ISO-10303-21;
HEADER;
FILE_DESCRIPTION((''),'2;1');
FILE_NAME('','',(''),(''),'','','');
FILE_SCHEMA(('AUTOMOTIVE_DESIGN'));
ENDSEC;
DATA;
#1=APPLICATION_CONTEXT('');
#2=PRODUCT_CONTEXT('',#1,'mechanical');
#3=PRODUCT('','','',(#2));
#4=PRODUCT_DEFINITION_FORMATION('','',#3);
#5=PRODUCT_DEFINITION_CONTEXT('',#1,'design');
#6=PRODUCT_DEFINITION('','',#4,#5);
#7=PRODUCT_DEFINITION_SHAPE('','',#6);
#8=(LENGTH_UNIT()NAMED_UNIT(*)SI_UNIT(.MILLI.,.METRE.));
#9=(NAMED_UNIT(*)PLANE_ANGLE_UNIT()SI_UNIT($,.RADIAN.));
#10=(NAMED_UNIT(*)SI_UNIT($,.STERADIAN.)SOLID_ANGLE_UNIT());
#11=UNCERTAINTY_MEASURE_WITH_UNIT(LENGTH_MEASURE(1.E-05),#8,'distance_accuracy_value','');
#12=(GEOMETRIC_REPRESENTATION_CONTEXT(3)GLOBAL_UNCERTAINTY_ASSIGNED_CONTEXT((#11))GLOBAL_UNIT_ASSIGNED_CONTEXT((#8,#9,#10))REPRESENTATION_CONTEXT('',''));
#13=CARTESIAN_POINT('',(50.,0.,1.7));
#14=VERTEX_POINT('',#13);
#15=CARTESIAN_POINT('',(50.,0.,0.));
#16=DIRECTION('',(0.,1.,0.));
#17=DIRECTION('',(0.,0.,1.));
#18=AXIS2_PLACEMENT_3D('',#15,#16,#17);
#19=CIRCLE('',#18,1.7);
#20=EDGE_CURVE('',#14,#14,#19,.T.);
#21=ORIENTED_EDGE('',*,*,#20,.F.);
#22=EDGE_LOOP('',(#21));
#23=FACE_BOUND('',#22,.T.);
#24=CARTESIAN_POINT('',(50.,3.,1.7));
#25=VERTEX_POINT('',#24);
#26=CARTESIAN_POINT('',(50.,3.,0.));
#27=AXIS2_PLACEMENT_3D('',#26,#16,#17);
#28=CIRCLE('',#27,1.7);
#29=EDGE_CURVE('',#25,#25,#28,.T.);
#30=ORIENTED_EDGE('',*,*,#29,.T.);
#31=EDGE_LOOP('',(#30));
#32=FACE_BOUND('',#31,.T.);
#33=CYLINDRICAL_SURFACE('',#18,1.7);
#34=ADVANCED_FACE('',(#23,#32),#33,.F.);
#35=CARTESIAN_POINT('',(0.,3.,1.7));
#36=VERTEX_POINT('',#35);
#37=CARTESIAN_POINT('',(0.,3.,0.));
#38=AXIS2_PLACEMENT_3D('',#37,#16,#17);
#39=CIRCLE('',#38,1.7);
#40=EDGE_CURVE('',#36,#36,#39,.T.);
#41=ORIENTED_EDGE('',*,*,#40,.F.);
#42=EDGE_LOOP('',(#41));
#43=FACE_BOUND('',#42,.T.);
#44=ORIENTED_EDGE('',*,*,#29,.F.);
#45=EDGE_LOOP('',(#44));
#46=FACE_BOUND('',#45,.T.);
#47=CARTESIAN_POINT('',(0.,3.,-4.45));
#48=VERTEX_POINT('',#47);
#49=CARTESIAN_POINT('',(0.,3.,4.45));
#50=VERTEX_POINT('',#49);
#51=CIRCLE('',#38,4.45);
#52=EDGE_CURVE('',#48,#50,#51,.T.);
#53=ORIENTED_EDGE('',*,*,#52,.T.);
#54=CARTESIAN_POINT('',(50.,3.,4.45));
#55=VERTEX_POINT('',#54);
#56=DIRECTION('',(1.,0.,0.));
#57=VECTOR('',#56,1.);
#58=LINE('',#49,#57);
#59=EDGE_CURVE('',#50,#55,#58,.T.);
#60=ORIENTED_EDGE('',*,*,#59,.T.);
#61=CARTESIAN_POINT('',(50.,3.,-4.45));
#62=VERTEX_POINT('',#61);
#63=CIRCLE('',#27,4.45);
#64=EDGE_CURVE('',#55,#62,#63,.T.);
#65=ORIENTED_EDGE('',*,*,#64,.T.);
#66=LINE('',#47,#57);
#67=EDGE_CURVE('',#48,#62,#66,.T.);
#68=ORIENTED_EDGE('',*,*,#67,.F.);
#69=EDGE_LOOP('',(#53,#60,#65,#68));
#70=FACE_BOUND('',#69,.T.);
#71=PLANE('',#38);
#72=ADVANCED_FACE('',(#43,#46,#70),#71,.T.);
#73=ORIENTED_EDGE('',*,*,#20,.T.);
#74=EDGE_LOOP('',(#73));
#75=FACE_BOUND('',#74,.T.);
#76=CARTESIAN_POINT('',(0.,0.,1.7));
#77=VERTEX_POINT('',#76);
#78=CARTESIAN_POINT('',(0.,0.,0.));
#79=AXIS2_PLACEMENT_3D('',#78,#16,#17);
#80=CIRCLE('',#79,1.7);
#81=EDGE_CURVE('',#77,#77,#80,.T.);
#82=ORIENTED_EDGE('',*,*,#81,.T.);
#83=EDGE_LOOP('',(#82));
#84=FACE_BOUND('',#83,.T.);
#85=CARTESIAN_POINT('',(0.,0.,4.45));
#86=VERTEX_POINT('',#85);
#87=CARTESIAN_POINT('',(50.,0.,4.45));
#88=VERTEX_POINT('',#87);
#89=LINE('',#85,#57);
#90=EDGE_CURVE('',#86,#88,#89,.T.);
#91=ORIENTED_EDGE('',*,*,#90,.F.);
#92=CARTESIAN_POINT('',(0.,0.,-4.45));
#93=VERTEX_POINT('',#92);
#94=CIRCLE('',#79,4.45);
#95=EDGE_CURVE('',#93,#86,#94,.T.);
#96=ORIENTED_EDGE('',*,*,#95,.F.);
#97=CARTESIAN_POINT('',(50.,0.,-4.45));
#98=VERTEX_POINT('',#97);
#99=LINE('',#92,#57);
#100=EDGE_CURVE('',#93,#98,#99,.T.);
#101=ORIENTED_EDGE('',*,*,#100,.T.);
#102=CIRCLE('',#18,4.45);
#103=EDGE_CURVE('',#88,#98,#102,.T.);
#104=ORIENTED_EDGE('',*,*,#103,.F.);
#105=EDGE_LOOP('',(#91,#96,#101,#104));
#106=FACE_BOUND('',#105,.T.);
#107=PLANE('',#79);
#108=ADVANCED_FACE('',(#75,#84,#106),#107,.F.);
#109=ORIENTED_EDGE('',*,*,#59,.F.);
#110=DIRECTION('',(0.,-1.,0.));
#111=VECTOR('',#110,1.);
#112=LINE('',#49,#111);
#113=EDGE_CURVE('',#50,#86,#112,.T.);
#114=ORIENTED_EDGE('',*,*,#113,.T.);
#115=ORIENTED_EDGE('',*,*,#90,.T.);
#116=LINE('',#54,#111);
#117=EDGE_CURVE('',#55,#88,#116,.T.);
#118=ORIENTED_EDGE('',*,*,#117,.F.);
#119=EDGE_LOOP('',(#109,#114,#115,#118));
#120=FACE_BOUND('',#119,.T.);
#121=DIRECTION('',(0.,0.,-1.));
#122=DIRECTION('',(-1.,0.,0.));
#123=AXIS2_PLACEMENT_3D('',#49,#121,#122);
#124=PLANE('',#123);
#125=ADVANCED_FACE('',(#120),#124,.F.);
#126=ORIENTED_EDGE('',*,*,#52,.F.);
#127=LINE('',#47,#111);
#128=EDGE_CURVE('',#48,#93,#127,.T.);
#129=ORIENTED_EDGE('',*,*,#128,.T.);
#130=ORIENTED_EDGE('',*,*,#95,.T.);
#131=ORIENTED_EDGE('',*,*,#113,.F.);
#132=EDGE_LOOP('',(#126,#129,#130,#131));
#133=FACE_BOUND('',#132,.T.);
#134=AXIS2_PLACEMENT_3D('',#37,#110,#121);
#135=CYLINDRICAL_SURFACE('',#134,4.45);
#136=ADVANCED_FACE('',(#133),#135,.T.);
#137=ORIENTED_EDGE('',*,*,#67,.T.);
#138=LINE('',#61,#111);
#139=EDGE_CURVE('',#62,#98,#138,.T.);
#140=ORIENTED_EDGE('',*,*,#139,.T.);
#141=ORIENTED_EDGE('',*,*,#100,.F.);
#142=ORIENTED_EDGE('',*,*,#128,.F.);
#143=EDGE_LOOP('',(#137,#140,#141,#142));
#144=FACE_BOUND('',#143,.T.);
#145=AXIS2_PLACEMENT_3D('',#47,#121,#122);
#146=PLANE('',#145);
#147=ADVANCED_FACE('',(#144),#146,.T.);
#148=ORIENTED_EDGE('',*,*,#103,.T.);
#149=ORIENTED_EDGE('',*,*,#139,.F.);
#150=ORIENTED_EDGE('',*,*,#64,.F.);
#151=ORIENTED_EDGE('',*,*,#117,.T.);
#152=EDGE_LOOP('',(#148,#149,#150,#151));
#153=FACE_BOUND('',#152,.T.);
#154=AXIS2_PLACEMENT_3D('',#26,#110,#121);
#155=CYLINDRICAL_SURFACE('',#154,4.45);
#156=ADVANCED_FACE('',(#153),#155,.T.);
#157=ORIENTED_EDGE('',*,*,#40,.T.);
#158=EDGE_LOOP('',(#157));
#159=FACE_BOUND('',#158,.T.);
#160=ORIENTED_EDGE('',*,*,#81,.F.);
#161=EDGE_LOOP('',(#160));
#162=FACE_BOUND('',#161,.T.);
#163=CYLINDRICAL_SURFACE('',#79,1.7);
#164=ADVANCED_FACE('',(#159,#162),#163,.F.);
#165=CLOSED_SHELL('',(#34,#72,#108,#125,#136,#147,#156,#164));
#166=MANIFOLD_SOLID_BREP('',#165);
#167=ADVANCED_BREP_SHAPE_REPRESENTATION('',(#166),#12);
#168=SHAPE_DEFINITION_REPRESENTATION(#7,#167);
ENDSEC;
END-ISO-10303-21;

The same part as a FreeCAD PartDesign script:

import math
import FreeCAD as App
import Part
import Sketcher
Q = App.Units.Quantity

doc = App.newDocument("Part")
body = doc.addObject("PartDesign::Body", "Body")

sketch1 = body.newObject("Sketcher::SketchObject", "Sketch")
sketch1.AttachmentSupport = (doc.getObject("XZ_Plane"), [""])
sketch1.MapMode = "FlatFace"
sketch1.addGeometry(Part.ArcOfCircle(Part.Circle(App.Vector(0, 0, 0), App.Vector(0, 0, 1), 4.5), math.radians(90), math.radians(270)), False)
sketch1.addGeometry(Part.LineSegment(App.Vector(0, 4.5, 0), App.Vector(50, 4.5, 0)), False)
sketch1.addGeometry(Part.ArcOfCircle(Part.Circle(App.Vector(50, 0, 0), App.Vector(0, 0, 1), 4.5), math.radians(-90), math.radians(90)), False)
sketch1.addGeometry(Part.LineSegment(App.Vector(50, -4.5, 0), App.Vector(0, -4.5, 0)), False)
sketch1.addGeometry(Part.Circle(App.Vector(0, 0, 0), App.Vector(0, 0, 1), 1.4), False)
sketch1.addGeometry(Part.Circle(App.Vector(50, 0, 0), App.Vector(0, 0, 1), 1.4), False)
sketch1.addConstraint(Sketcher.Constraint("Tangent", 0, 1, 1, 1))
sketch1.addConstraint(Sketcher.Constraint("Tangent", 1, 2, 2, 2))
sketch1.addConstraint(Sketcher.Constraint("Tangent", 2, 1, 3, 1))
sketch1.addConstraint(Sketcher.Constraint("Tangent", 3, 2, 0, 2))
sketch1.addConstraint(Sketcher.Constraint("Horizontal", 1))
sketch1.addConstraint(Sketcher.Constraint("Horizontal", 3))
sketch1.addConstraint(Sketcher.Constraint("Coincident", 0, 3, -1, 1))
sketch1.addConstraint(Sketcher.Constraint("Coincident", 4, 3, -1, 1))
sketch1.addConstraint(Sketcher.Constraint("Coincident", 5, 3, 2, 3))
sketch1.addConstraint(Sketcher.Constraint("Equal", 4, 5))
sketch1.addConstraint(Sketcher.Constraint("Diameter", 4, Q("2.9 mm")))
sketch1.addConstraint(Sketcher.Constraint("DistanceX", 1, 1, 1, 2, Q("50 mm")))
sketch1.addConstraint(Sketcher.Constraint("Radius", 0, Q("4.45 mm")))
pad1 = body.newObject("PartDesign::Pad", "Pad")
pad1.Profile = sketch1
pad1.Length = 3
pad1.Reversed = True

sketch2 = body.newObject("Sketcher::SketchObject", "Sketch001")
sketch2.AttachmentSupport = (doc.getObject("XZ_Plane"), [""])
sketch2.MapMode = "FlatFace"
sketch2.AttachmentOffset = App.Placement(App.Vector(0, 0, -3), App.Rotation())
sketch2.addGeometry(Part.Circle(App.Vector(0, 0, 0), App.Vector(0, 0, 1), 1.7), False)
sketch2.addGeometry(Part.Circle(App.Vector(50, 0, 0), App.Vector(0, 0, 1), 1.7), False)
sketch2.addConstraint(Sketcher.Constraint("Coincident", 0, 3, -1, 1))
sketch2.addConstraint(Sketcher.Constraint("Equal", 0, 1))
sketch2.addConstraint(Sketcher.Constraint("PointOnObject", 1, 3, -1))
sketch2.addConstraint(Sketcher.Constraint("Diameter", 0, Q("3.4 mm")))
sketch2.addConstraint(Sketcher.Constraint("DistanceX", -1, 1, 1, 3, Q("50 mm")))
pocket1 = body.newObject("PartDesign::Pocket", "Pocket")
pocket1.Profile = sketch2
pocket1.Type = "ThroughAll"
pocket1.Reversed = True

doc.recompute()
